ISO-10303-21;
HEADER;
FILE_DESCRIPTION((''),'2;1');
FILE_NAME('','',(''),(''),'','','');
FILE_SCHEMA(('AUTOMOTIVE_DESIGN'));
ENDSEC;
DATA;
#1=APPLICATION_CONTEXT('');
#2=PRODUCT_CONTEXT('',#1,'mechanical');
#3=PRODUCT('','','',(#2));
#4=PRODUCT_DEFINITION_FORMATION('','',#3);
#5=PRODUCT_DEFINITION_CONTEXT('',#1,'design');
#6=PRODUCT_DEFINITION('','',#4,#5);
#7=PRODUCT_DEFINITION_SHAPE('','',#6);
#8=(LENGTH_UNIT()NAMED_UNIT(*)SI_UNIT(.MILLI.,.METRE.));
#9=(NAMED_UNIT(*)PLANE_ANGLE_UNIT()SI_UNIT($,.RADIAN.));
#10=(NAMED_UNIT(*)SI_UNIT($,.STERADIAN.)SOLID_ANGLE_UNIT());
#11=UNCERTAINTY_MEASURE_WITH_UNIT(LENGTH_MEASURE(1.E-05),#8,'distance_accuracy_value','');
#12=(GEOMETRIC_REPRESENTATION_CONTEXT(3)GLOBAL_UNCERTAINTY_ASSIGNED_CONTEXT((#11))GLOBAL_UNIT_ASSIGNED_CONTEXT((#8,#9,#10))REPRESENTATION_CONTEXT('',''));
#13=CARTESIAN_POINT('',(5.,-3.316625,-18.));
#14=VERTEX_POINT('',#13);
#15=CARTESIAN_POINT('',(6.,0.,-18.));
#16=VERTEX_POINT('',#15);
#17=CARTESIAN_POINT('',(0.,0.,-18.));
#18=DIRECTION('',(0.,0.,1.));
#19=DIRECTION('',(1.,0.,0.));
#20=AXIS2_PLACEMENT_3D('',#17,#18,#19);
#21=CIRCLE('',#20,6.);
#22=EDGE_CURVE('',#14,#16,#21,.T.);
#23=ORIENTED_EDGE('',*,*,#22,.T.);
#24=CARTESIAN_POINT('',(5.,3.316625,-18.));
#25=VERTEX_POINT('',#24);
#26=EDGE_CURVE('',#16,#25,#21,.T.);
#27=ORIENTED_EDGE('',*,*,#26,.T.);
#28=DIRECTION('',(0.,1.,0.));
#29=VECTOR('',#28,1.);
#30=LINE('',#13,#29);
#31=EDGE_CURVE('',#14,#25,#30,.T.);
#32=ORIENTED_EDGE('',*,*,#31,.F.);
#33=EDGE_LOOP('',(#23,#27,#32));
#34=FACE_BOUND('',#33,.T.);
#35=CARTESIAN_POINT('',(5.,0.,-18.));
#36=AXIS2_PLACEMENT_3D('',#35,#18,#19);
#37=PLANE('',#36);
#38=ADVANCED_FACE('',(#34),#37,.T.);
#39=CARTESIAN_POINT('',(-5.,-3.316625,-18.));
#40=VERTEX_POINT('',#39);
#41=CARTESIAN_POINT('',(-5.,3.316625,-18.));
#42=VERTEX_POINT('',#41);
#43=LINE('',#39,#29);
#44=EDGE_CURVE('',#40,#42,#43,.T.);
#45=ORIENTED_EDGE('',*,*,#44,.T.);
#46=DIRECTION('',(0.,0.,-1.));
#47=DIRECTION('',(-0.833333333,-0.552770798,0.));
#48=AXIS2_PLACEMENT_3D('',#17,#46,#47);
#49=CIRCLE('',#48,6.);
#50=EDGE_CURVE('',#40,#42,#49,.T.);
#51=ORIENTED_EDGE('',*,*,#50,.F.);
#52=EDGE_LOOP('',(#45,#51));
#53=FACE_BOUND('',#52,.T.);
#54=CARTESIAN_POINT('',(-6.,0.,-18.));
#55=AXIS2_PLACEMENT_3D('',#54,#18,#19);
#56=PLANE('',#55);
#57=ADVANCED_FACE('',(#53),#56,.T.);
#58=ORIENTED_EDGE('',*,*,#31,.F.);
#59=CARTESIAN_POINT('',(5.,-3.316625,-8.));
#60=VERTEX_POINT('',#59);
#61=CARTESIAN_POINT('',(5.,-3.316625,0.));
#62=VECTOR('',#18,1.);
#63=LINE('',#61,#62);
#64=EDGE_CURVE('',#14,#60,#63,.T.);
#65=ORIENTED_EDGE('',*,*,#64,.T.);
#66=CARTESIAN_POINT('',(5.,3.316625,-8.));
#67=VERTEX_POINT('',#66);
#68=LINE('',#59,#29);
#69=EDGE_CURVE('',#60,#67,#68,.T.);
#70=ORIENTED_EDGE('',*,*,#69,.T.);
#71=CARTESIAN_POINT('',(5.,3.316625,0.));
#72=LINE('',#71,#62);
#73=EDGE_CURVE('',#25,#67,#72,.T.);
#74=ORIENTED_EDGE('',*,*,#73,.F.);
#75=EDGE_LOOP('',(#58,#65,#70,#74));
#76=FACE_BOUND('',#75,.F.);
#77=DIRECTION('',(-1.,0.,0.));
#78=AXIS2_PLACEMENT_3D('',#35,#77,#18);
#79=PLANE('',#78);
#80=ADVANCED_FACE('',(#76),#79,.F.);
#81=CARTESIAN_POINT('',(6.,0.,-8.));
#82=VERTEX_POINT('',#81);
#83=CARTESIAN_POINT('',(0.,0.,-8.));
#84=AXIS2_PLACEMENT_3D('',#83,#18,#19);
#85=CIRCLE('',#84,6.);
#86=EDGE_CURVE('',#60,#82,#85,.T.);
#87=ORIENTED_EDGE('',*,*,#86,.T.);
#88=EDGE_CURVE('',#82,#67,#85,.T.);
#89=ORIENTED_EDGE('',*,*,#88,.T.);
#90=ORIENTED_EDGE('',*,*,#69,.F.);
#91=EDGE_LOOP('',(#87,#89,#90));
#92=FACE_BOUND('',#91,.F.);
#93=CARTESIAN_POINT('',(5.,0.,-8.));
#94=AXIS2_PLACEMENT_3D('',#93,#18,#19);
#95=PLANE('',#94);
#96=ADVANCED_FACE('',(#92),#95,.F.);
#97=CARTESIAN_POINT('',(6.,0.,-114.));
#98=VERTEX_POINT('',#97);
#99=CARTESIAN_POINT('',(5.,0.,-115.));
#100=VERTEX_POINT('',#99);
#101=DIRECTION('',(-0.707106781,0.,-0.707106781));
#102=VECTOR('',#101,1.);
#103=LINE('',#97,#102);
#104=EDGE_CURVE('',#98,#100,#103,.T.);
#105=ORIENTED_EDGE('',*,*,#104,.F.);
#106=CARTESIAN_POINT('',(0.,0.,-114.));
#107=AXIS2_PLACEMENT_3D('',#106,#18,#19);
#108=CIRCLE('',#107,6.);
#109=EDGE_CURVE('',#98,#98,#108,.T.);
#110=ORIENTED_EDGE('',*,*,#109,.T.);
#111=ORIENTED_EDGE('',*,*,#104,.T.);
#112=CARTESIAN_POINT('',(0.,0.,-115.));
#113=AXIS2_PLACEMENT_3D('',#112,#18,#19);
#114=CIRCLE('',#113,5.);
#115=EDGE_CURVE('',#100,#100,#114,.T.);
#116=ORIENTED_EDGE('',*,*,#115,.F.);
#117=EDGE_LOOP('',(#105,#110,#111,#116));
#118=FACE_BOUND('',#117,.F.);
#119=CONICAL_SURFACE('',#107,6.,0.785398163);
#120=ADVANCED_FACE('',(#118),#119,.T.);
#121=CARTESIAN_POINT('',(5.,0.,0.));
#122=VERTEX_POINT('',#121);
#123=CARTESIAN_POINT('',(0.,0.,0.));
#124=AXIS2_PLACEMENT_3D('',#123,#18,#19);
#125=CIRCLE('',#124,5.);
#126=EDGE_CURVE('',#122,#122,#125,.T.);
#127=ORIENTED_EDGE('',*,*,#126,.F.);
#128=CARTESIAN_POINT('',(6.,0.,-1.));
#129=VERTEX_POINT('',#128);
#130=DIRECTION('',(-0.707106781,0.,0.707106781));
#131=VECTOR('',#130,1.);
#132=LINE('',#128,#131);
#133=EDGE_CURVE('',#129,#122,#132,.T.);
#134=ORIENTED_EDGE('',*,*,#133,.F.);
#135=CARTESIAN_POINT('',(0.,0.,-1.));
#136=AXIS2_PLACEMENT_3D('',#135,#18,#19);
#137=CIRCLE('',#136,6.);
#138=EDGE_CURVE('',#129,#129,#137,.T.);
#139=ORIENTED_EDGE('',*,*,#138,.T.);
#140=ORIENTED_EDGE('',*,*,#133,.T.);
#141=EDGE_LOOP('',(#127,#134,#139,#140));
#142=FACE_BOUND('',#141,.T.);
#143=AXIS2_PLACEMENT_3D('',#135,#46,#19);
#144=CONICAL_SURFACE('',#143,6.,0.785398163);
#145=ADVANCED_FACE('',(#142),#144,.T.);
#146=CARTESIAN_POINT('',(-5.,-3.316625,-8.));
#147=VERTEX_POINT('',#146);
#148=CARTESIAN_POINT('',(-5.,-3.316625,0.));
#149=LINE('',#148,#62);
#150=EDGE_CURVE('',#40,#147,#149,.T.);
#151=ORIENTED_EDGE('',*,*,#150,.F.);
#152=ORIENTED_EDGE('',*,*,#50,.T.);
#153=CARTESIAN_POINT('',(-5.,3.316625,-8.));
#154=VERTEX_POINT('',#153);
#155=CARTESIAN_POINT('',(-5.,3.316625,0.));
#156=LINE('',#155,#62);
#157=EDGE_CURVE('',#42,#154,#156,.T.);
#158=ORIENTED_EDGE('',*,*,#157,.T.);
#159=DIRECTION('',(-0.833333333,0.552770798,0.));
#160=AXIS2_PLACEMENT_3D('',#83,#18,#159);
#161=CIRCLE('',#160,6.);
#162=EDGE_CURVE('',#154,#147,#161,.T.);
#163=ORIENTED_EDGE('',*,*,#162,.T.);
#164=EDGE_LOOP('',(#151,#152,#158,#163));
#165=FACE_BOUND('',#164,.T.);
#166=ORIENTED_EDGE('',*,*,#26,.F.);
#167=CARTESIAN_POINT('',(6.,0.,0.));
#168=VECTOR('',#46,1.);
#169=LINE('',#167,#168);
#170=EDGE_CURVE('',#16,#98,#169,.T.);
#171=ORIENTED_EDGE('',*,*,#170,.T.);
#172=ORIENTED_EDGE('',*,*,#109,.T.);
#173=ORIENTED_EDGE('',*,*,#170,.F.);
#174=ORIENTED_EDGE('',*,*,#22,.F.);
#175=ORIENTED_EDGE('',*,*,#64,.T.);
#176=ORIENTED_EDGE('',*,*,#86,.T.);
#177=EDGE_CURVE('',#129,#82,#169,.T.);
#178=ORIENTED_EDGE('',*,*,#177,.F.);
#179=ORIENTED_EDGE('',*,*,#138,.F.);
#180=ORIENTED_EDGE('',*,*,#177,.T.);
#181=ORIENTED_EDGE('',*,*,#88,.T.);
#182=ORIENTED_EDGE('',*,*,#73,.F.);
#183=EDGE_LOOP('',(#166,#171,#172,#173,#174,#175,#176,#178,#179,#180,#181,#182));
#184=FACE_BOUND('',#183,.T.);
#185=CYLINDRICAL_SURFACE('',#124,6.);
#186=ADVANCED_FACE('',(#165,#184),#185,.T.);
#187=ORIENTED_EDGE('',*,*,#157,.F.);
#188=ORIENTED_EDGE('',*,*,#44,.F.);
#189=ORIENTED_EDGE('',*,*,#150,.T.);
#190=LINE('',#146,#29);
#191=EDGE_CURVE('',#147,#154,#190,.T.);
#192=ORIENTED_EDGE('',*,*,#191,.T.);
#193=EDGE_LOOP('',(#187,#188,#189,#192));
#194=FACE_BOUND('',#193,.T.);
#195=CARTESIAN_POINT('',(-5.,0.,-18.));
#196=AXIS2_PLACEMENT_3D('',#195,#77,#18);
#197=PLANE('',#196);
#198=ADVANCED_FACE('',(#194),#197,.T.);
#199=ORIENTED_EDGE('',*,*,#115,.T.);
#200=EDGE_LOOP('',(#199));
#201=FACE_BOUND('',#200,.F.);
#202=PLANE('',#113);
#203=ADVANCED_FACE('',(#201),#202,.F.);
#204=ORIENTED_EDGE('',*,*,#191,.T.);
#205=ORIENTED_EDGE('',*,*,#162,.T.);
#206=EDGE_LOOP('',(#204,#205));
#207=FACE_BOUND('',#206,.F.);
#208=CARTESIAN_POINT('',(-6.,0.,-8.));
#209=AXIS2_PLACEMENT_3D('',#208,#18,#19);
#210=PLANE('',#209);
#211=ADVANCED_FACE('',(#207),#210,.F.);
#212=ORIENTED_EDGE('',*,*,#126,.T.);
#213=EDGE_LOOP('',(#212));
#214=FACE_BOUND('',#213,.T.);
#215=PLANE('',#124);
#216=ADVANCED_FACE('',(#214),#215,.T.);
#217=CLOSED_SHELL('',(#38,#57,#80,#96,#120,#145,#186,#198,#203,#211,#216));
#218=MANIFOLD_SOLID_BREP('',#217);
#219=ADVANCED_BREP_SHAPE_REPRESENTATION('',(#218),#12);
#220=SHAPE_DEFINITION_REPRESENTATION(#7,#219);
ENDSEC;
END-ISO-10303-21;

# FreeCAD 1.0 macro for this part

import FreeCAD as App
import Part
import Sketcher
Q = App.Units.Quantity


def edges_at(feature, points):
    """Names of the edges that pass closest to the given points."""
    edges = feature.Shape.Edges
    near = lambda p: min(range(len(edges)), key=lambda i: edges[i].distToShape(Part.Vertex(*p))[0])
    return sorted({f"Edge{near(p) + 1}" for p in points})


def add_polygon(sketch, points):
    """Adds a closed chain of lines whose ends are joined by coincident constraints."""
    first, n = sketch.GeometryCount, len(points)
    for a, b in zip(points, points[1:] + points[:1]):
        sketch.addGeometry(Part.LineSegment(App.Vector(*a, 0), App.Vector(*b, 0)), False)
    for i in range(n):
        sketch.addConstraint(Sketcher.Constraint("Coincident", first + i, 2, first + (i + 1) % n, 1))

doc = App.newDocument("Part")
params = doc.addObject("Spreadsheet::Sheet", "Params")
for row, (alias, value) in enumerate([
    ("sketch1_diameter", "12 mm"),
    ("pad1_length", "115 mm"),
    ("sketch2_width", "1 mm"),
    ("sketch2_height", "10 mm"),
    ("chamfer_size", "1 mm"),
    ("chamfer_size2", "1 mm"),
], start=1):
    params.set(f"A{row}", alias)
    params.set(f"B{row}", "=" + value)
    params.setAlias(f"B{row}", alias)

body = doc.addObject("PartDesign::Body", "Body")

# Sketch on XY plane
sketch1 = doc.addObject("Sketcher::SketchObject", "Sketch")
body.addObject(sketch1)
sketch1.AttachmentSupport = (doc.XY_Plane, [""])
sketch1.MapMode = "FlatFace"
sketch1.addGeometry(Part.Circle(App.Vector(0, 0, 0), App.Vector(0, 0, 1), 6), False)
sketch1.addConstraint([
    Sketcher.Constraint("Coincident", 0, 3, -1, 1),
    Sketcher.Constraint("Diameter", 0, Q("12 mm")),
])
sketch1.setExpression("Constraints[1]", "Params.sketch1_diameter")
pad1 = doc.addObject("PartDesign::Pad", "Pad")
body.addObject(pad1)
pad1.Profile = sketch1
pad1.setExpression("Length", "Params.pad1_length")
pad1.Reversed = True

# Sketch on XZ plane
sketch2 = doc.addObject("Sketcher::SketchObject", "Sketch001")
body.addObject(sketch2)
sketch2.AttachmentSupport = (doc.XZ_Plane, [""])
sketch2.MapMode = "FlatFace"
add_polygon(sketch2, [(5, -8), (5, -18), (6, -18), (6, -8)])  # lines 0-3
add_polygon(sketch2, [(-6, -8), (-6, -18), (-5, -18), (-5, -8)])  # lines 4-7
sketch2.addConstraint([
    Sketcher.Constraint("Vertical", 0),
    Sketcher.Constraint("Horizontal", 1),
    Sketcher.Constraint("Vertical", 2),
    Sketcher.Constraint("Horizontal", 3),
    Sketcher.Constraint("Vertical", 4),
    Sketcher.Constraint("Horizontal", 5),
    Sketcher.Constraint("Vertical", 6),
    Sketcher.Constraint("Horizontal", 7),
    Sketcher.Constraint("Symmetric", 1, 2, 4, 2, -2),
    Sketcher.Constraint("Symmetric", 3, 2, 6, 2, -2),
    Sketcher.Constraint("DistanceX", 1, 1, 1, 2, Q("1 mm")),
    Sketcher.Constraint("DistanceY", 0, 2, 0, 1, Q("10 mm")),
    Sketcher.Constraint("DistanceX", -1, 1, 0, 2, Q("5 mm")),
    Sketcher.Constraint("DistanceY", 0, 2, -1, 1, Q("18 mm")),
])
sketch2.setExpression("Constraints[18]", "Params.sketch2_width")
sketch2.setExpression("Constraints[19]", "Params.sketch2_height")
pocket1 = doc.addObject("PartDesign::Pocket", "Pocket")
body.addObject(pocket1)
pocket1.Profile = sketch2
pocket1.Type = "ThroughAll"
pocket1.Midplane = True
doc.recompute()

chamfer = doc.addObject("PartDesign::Chamfer", "Chamfer")
body.addObject(chamfer)
chamfer.Base = (pocket1, edges_at(pocket1, [(-6, 0, 0), (-6, 0, -115)]))
chamfer.ChamferType = "Two distances"
chamfer.setExpression("Size", "Params.chamfer_size")
chamfer.setExpression("Size2", "Params.chamfer_size2")

doc.recompute()
